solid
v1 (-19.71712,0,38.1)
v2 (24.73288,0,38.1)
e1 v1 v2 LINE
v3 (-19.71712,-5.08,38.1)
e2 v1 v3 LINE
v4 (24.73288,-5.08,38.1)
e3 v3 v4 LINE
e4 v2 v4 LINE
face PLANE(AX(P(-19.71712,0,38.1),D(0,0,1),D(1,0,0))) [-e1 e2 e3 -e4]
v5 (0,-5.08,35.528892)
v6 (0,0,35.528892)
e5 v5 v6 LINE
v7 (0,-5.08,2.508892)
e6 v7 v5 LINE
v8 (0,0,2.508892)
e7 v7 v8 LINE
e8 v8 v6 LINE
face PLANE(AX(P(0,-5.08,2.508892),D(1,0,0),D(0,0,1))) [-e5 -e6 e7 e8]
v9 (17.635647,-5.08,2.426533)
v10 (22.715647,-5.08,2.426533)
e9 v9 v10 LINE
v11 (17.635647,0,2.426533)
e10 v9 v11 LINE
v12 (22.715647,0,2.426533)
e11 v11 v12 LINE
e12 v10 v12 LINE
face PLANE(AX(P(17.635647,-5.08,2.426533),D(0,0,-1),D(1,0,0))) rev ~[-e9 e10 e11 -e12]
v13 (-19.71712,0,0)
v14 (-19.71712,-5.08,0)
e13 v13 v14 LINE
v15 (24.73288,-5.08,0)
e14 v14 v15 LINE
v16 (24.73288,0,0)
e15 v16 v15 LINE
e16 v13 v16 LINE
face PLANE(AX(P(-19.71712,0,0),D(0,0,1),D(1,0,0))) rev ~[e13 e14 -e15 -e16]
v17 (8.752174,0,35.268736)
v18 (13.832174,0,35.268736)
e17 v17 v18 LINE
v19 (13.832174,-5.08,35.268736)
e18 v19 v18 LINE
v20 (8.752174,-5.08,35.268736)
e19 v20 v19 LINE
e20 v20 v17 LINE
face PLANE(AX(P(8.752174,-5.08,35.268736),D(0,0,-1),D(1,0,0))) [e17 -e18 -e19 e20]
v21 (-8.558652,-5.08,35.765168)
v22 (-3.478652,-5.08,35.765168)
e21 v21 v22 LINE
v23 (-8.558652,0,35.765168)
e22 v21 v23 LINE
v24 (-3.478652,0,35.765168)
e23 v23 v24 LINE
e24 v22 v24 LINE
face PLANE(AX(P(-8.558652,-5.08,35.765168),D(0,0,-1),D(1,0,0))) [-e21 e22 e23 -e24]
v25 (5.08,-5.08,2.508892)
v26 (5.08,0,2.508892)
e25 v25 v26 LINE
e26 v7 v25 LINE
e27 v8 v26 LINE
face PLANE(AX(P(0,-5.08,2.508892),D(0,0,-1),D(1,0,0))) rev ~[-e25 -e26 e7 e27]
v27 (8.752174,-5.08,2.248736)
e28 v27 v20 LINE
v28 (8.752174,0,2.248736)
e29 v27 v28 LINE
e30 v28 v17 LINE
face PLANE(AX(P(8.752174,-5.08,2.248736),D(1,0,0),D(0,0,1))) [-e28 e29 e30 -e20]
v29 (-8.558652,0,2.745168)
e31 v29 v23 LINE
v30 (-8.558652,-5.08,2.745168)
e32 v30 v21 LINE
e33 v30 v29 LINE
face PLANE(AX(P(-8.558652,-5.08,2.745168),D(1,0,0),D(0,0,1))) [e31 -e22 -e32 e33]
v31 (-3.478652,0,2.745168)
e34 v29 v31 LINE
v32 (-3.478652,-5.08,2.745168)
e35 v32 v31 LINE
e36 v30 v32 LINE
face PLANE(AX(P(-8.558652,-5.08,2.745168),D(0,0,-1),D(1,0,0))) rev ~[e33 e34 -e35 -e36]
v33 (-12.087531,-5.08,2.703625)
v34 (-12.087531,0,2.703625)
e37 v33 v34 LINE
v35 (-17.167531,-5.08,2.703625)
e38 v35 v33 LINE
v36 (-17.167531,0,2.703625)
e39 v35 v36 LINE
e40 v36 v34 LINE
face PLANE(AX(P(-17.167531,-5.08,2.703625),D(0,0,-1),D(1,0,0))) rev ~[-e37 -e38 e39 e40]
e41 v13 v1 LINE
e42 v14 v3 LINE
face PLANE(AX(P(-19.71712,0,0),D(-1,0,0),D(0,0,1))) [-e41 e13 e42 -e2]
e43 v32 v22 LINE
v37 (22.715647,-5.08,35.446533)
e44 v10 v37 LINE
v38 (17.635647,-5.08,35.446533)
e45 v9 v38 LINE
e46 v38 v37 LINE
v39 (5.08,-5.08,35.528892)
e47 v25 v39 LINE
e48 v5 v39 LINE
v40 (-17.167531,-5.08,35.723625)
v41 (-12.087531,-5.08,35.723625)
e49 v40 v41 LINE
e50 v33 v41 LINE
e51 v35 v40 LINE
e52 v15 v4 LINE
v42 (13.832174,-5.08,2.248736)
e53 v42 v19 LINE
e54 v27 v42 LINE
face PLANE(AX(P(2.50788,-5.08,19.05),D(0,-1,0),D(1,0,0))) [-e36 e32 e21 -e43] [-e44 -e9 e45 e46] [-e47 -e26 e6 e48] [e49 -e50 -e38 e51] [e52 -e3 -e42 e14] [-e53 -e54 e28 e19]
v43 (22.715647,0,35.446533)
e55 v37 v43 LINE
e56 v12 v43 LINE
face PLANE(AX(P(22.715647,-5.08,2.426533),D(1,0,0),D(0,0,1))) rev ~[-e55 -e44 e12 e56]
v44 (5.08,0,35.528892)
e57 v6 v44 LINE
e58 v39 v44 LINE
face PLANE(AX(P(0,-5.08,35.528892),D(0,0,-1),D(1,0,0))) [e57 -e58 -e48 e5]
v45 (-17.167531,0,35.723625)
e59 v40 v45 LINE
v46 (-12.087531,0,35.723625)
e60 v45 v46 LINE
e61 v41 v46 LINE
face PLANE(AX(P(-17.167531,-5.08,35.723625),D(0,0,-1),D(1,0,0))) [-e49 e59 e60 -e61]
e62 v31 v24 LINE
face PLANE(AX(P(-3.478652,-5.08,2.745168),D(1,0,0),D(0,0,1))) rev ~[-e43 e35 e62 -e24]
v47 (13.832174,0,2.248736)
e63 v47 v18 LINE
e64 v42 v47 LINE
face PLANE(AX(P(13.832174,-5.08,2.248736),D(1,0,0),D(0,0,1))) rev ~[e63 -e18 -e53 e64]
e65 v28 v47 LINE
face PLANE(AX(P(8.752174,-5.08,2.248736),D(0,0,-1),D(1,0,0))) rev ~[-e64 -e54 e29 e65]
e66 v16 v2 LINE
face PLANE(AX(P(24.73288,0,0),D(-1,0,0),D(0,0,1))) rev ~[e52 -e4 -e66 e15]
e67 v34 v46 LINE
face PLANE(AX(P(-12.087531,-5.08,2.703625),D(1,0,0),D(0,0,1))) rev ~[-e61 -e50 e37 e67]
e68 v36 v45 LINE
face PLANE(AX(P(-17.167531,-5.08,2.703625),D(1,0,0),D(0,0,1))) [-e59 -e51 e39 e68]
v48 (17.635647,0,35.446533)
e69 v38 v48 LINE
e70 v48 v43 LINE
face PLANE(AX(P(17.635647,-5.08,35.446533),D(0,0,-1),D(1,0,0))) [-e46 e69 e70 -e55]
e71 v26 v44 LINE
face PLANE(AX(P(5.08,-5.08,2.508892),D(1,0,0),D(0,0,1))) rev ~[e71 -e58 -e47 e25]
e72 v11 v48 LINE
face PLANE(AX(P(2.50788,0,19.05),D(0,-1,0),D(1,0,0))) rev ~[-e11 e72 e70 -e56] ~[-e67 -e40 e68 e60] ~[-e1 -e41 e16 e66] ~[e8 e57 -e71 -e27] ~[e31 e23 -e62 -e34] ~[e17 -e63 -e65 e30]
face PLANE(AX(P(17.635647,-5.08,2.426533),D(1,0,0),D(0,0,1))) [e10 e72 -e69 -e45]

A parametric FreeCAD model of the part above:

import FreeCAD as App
import Part
import Sketcher
Q = App.Units.Quantity


def add_polygon(sketch, points):
    """Adds a closed chain of lines whose ends are joined by coincident constraints."""
    first, n = sketch.GeometryCount, len(points)
    for a, b in zip(points, points[1:] + points[:1]):
        sketch.addGeometry(Part.LineSegment(App.Vector(*a, 0), App.Vector(*b, 0)), False)
    for i in range(n):
        sketch.addConstraint(Sketcher.Constraint("Coincident", first + i, 2, first + (i + 1) % n, 1))

doc = App.newDocument("Part")
body = doc.addObject("PartDesign::Body", "Body")

# Sketch on XZ plane
sketch1 = body.newObject("Sketcher::SketchObject", "Sketch")
sketch1.AttachmentSupport = (doc.getObject("XZ_Plane"), [""])
sketch1.MapMode = "FlatFace"
add_polygon(sketch1, [(-20, 38), (-20, 0), (25, 0), (25, 38)])  # lines 0-3
sketch1.addConstraint([
    Sketcher.Constraint("Vertical", 0),
    Sketcher.Constraint("Horizontal", 1),
    Sketcher.Constraint("Vertical", 2),
    Sketcher.Constraint("Horizontal", 3),
    Sketcher.Constraint("PointOnObject", 0, 2, -1),
    Sketcher.Constraint("DistanceY", 0, 2, 0, 1, Q("1.5 in")),
    Sketcher.Constraint("DistanceX", 1, 1, 1, 2, Q("1.75 in")),
    Sketcher.Constraint("DistanceX", 0, 2, -1, 1, Q("19.71712 mm")),
])
pad1 = body.newObject("PartDesign::Pad", "Pad")
pad1.Profile = sketch1
pad1.Length = Q("0.2 in")

# Sketch on XZ plane
sketch2 = body.newObject("Sketcher::SketchObject", "Sketch001")
sketch2.AttachmentSupport = (doc.getObject("XZ_Plane"), [""])
sketch2.MapMode = "FlatFace"
sketch2.AttachmentOffset = App.Placement(App.Vector(0, 0, 0.2 * 25.4), App.Rotation())
add_polygon(sketch2, [(-17, 36), (-17, 3), (-12, 3), (-12, 36)])  # lines 0-3
add_polygon(sketch2, [(-9, 36), (-9, 3), (-3, 3), (-3, 36)])  # lines 4-7
add_polygon(sketch2, [(0, 36), (0, 3), (5, 3), (5, 36)])  # lines 8-11
add_polygon(sketch2, [(9, 35), (9, 2), (14, 2), (14, 35)])  # lines 12-15
add_polygon(sketch2, [(18, 35), (18, 2), (23, 2), (23, 35)])  # lines 16-19
sketch2.addConstraint([
    Sketcher.Constraint("Vertical", 0),
    Sketcher.Constraint("Horizontal", 1),
    Sketcher.Constraint("Vertical", 2),
    Sketcher.Constraint("Horizontal", 3),
    Sketcher.Constraint("Vertical", 4),
    Sketcher.Constraint("Horizontal", 5),
    Sketcher.Constraint("Vertical", 6),
    Sketcher.Constraint("Horizontal", 7),
    Sketcher.Constraint("Vertical", 8),
    Sketcher.Constraint("Horizontal", 9),
    Sketcher.Constraint("Vertical", 10),
    Sketcher.Constraint("Horizontal", 11),
    Sketcher.Constraint("Vertical", 12),
    Sketcher.Constraint("Horizontal", 13),
    Sketcher.Constraint("Vertical", 14),
    Sketcher.Constraint("Horizontal", 15),
    Sketcher.Constraint("Vertical", 16),
    Sketcher.Constraint("Horizontal", 17),
    Sketcher.Constraint("Vertical", 18),
    Sketcher.Constraint("Horizontal", 19),
    Sketcher.Constraint("PointOnObject", 8, 2, -2),
    Sketcher.Constraint("Equal", 3, 5),
    Sketcher.Constraint("Equal", 7, 9),
    Sketcher.Constraint("Equal", 11, 13),
    Sketcher.Constraint("Equal", 15, 17),
    Sketcher.Constraint("Equal", 2, 4),
    Sketcher.Constraint("Equal", 6, 8),
    Sketcher.Constraint("Equal", 10, 12),
    Sketcher.Constraint("Equal", 14, 16),
    Sketcher.Constraint("DistanceX", 1, 1, 1, 2, Q("0.2 in")),
    Sketcher.Constraint("DistanceY", 0, 2, 0, 1, Q("1.3 in")),
    Sketcher.Constraint("DistanceY", 13, 2, 16, 2, Q("0.0069999 in")),
    Sketcher.Constraint("DistanceX", 5, 2, 16, 2, Q("21.114299 mm")),
    Sketcher.Constraint("DistanceX", 0, 2, -1, 1, Q("17.167531 mm")),
    Sketcher.Constraint("DistanceY", -1, 1, 4, 2, Q("2.745168 mm")),
    Sketcher.Constraint("DistanceX", 5, 2, -1, 1, Q("3.478652 mm")),
    Sketcher.Constraint("DistanceY", -1, 1, 8, 2, Q("2.508892 mm")),
    Sketcher.Constraint("DistanceY", 12, 2, 1, 2, Q("0.454889 mm")),
    Sketcher.Constraint("DistanceY", 16, 2, 9, 2, Q("0.082359 mm")),
    Sketcher.Constraint("DistanceX", -1, 1, 12, 2, Q("8.752174 mm")),
])
pocket1 = body.newObject("PartDesign::Pocket", "Pocket")
pocket1.Profile = sketch2
pocket1.Length = Q("1 in")

doc.recompute()
